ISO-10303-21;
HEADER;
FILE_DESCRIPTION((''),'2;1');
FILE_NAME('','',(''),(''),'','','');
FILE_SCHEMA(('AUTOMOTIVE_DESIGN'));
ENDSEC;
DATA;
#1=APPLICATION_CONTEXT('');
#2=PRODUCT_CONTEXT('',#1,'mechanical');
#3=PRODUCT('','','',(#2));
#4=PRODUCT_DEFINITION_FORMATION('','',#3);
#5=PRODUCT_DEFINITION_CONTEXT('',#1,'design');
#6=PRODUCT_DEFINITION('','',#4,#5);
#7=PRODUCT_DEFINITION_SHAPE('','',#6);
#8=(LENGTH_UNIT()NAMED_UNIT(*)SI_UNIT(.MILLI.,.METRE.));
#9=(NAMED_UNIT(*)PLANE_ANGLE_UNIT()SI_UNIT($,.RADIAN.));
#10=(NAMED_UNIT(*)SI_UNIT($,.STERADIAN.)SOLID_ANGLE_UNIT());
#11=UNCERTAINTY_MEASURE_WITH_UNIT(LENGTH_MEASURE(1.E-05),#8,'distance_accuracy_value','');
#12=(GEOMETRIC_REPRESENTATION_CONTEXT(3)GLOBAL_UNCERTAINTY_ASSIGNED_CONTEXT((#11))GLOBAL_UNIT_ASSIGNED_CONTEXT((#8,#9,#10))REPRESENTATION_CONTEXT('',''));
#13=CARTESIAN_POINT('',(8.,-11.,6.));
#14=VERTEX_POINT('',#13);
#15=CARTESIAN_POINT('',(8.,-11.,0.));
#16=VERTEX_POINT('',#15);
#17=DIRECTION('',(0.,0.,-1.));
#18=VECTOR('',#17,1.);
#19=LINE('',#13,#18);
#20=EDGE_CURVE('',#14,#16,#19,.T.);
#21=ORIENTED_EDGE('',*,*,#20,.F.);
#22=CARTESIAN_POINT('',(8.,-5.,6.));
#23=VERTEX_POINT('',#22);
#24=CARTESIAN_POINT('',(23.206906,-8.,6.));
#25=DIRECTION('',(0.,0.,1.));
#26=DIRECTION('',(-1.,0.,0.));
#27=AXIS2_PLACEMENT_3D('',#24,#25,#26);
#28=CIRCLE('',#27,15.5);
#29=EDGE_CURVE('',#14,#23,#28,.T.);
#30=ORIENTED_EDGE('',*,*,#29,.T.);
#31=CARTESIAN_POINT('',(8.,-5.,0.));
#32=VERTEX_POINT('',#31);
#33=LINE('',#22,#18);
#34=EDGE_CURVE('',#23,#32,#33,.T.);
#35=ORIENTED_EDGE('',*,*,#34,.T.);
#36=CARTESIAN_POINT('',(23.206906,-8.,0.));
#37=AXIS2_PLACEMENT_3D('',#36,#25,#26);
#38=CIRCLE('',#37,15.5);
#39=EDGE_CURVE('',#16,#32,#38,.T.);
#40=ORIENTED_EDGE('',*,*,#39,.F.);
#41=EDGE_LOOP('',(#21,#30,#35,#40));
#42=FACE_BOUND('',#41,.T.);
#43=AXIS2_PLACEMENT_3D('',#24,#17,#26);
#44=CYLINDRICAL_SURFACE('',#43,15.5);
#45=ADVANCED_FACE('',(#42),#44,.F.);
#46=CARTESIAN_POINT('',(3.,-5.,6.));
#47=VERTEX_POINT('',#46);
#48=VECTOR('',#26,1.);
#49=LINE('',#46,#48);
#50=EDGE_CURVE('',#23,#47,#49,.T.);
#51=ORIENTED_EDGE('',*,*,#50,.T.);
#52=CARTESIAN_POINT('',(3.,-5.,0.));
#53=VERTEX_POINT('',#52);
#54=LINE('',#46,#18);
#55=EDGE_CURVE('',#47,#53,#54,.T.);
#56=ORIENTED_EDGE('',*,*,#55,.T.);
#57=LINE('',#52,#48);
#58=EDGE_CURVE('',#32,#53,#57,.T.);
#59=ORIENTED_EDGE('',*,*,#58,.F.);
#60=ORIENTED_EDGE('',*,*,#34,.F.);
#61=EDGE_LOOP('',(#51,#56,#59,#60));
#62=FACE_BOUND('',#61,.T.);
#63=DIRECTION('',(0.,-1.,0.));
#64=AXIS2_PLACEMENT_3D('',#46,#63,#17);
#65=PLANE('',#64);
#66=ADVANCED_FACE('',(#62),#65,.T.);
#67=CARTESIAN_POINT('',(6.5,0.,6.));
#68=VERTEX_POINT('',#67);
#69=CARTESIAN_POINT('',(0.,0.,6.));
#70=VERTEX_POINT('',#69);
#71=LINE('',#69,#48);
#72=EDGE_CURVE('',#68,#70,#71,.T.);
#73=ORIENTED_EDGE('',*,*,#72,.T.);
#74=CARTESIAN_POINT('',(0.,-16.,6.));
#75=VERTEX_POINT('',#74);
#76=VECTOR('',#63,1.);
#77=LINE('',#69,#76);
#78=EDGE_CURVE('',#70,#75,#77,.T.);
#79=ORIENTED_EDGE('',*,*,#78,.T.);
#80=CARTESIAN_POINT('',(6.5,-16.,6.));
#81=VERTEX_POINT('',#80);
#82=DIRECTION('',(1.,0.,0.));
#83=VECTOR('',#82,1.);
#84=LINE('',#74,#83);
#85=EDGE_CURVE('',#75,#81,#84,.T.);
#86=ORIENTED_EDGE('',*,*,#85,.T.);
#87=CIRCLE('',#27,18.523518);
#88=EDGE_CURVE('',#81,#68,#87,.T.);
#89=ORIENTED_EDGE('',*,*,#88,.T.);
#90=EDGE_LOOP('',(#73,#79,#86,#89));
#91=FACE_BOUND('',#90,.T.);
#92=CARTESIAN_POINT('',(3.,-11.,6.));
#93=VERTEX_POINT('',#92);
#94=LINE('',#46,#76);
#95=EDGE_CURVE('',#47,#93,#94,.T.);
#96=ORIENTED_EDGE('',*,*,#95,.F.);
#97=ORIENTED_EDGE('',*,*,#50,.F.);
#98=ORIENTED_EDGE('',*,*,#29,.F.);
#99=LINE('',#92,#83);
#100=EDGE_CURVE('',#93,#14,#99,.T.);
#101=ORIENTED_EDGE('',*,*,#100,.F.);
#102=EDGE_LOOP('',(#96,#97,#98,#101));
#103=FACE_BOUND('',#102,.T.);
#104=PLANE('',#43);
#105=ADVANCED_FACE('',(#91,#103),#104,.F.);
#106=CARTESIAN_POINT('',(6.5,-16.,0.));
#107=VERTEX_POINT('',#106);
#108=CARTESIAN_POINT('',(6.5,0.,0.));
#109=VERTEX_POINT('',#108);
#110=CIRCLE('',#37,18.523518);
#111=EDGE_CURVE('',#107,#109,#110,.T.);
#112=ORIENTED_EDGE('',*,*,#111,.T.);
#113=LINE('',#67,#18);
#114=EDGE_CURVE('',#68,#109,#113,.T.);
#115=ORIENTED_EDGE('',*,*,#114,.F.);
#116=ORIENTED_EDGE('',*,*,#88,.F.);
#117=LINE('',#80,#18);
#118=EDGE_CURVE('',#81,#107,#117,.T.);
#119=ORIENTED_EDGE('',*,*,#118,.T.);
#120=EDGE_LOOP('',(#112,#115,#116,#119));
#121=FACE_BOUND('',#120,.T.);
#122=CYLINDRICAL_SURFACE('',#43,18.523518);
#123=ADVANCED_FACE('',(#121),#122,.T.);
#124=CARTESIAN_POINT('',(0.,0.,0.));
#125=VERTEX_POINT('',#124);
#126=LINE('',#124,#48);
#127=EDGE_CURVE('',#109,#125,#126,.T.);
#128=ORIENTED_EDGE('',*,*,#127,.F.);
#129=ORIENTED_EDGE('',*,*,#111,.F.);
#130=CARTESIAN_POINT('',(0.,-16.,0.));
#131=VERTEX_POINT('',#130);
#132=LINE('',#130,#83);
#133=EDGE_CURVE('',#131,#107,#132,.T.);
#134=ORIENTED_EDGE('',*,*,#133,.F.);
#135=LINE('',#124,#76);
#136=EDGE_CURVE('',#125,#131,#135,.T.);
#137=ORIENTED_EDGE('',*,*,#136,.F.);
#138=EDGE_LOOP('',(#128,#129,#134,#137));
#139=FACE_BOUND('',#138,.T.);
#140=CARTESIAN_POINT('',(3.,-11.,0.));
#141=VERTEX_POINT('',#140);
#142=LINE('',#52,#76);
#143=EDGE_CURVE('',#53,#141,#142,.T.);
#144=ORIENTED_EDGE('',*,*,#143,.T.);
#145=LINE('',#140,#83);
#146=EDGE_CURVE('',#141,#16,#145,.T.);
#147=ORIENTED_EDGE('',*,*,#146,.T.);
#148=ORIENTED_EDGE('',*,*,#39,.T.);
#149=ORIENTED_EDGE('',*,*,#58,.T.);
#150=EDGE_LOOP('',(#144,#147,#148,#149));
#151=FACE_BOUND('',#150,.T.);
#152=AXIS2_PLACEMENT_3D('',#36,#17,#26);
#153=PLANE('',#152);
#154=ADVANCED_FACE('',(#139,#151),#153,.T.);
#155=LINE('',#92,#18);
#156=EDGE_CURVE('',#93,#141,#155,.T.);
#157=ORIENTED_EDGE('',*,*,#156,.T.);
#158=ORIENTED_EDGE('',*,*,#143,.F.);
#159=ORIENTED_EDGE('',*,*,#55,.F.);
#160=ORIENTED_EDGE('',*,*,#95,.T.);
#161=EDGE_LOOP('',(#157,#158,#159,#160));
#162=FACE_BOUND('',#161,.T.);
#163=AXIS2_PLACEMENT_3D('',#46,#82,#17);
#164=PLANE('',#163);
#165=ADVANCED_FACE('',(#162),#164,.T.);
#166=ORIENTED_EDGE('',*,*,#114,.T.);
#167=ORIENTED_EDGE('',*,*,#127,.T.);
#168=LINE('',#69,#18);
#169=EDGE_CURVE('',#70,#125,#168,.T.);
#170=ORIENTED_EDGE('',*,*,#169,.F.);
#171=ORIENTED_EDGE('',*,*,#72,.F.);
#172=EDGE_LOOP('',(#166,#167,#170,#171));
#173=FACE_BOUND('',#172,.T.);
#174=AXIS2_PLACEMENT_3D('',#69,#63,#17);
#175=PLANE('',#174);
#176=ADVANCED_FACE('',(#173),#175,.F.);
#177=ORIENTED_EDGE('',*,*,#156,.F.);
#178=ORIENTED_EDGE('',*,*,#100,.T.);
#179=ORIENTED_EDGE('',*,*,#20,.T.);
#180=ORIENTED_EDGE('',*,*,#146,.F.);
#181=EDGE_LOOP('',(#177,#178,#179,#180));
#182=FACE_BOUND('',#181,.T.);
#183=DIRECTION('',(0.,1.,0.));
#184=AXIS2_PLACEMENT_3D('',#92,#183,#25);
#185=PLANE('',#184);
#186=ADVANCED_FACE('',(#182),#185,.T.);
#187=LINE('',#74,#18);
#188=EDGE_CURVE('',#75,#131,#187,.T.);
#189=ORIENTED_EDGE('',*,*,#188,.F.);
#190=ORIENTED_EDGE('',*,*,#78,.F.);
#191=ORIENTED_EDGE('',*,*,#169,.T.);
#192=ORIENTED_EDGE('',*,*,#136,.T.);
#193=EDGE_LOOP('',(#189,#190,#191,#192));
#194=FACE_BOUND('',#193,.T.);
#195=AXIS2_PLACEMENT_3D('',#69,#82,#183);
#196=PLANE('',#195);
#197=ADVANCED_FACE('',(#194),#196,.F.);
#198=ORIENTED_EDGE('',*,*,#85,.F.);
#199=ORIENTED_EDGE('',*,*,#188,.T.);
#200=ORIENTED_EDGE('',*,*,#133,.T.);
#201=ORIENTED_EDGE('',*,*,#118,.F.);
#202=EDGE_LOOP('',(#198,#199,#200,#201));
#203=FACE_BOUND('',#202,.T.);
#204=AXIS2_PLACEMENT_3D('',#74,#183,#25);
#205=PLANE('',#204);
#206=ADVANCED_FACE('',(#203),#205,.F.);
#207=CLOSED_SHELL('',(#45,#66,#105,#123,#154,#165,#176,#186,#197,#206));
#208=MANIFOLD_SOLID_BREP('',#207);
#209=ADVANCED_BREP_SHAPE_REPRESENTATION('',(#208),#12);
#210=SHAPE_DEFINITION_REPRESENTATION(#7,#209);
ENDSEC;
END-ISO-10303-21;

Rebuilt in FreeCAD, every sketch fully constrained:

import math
import FreeCAD as App
import Part
import Sketcher
from FreeCAD import Vector

doc = App.newDocument("Part")
body = doc.addObject("PartDesign::Body", "Body")

sketch1 = body.newObject("Sketcher::SketchObject", "Sketch")
sketch1.AttachmentSupport = (doc.getObject("XY_Plane"), [""])
sketch1.MapMode = "FlatFace"
sketch1.addGeometry([
    Part.LineSegment(Vector(6, 0, 0), Vector(0, 0, 0)),
    Part.LineSegment(Vector(0, 0, 0), Vector(0, -16, 0)),
    Part.LineSegment(Vector(0, -16, 0), Vector(6, -16, 0)),
    Part.ArcOfCircle(Part.Circle(Vector(23, -8, 0), Vector(0, 0, 1), 19), math.radians(-154), math.radians(154)),
    Part.LineSegment(Vector(3, -5, 0), Vector(8, -5, 0)),
    Part.ArcOfCircle(Part.Circle(Vector(23, -8, 0), Vector(0, 0, 1), 16), math.radians(-169), math.radians(169)),
    Part.LineSegment(Vector(8, -11, 0), Vector(3, -11, 0)),
    Part.LineSegment(Vector(3, -11, 0), Vector(3, -5, 0)),
], False)
sketch1.addConstraint([
    Sketcher.Constraint("Coincident", 0, 2, 1, 1),
    Sketcher.Constraint("Coincident", 1, 2, 2, 1),
    Sketcher.Constraint("Coincident", 2, 2, 3, 1),
    Sketcher.Constraint("Coincident", 3, 2, 0, 1),
    Sketcher.Constraint("Coincident", 4, 2, 5, 2),
    Sketcher.Constraint("Coincident", 5, 1, 6, 1),
    Sketcher.Constraint("Coincident", 6, 2, 7, 1),
    Sketcher.Constraint("Coincident", 7, 2, 4, 1),
    Sketcher.Constraint("Horizontal", 0),
    Sketcher.Constraint("Vertical", 1),
    Sketcher.Constraint("Horizontal", 2),
    Sketcher.Constraint("Horizontal", 4),
    Sketcher.Constraint("Horizontal", 6),
    Sketcher.Constraint("Vertical", 7),
    Sketcher.Constraint("Coincident", 0, 2, -1, 1),
    Sketcher.Constraint("Coincident", 5, 3, 3, 3),
    Sketcher.Constraint("Vertical", 2, 2, 3, 2),
    Sketcher.Constraint("Vertical", 4, 2, 5, 1),
    Sketcher.Constraint("Radius", 5, 15.5),
    Sketcher.Constraint("DistanceX", 4, 1, 4, 2, 5.0),
    Sketcher.Constraint("DistanceY", 1, 2, 1, 1, 16.0),
    Sketcher.Constraint("DistanceY", 7, 1, 7, 2, 6.0),
    Sketcher.Constraint("DistanceX", 0, 2, 0, 1, 6.5),
    Sketcher.Constraint("DistanceX", -1, 1, 4, 2, 8.0),
])
pad1 = body.newObject("PartDesign::Pad", "Pad")
pad1.Profile = sketch1
pad1.Length = 6

doc.recompute()
